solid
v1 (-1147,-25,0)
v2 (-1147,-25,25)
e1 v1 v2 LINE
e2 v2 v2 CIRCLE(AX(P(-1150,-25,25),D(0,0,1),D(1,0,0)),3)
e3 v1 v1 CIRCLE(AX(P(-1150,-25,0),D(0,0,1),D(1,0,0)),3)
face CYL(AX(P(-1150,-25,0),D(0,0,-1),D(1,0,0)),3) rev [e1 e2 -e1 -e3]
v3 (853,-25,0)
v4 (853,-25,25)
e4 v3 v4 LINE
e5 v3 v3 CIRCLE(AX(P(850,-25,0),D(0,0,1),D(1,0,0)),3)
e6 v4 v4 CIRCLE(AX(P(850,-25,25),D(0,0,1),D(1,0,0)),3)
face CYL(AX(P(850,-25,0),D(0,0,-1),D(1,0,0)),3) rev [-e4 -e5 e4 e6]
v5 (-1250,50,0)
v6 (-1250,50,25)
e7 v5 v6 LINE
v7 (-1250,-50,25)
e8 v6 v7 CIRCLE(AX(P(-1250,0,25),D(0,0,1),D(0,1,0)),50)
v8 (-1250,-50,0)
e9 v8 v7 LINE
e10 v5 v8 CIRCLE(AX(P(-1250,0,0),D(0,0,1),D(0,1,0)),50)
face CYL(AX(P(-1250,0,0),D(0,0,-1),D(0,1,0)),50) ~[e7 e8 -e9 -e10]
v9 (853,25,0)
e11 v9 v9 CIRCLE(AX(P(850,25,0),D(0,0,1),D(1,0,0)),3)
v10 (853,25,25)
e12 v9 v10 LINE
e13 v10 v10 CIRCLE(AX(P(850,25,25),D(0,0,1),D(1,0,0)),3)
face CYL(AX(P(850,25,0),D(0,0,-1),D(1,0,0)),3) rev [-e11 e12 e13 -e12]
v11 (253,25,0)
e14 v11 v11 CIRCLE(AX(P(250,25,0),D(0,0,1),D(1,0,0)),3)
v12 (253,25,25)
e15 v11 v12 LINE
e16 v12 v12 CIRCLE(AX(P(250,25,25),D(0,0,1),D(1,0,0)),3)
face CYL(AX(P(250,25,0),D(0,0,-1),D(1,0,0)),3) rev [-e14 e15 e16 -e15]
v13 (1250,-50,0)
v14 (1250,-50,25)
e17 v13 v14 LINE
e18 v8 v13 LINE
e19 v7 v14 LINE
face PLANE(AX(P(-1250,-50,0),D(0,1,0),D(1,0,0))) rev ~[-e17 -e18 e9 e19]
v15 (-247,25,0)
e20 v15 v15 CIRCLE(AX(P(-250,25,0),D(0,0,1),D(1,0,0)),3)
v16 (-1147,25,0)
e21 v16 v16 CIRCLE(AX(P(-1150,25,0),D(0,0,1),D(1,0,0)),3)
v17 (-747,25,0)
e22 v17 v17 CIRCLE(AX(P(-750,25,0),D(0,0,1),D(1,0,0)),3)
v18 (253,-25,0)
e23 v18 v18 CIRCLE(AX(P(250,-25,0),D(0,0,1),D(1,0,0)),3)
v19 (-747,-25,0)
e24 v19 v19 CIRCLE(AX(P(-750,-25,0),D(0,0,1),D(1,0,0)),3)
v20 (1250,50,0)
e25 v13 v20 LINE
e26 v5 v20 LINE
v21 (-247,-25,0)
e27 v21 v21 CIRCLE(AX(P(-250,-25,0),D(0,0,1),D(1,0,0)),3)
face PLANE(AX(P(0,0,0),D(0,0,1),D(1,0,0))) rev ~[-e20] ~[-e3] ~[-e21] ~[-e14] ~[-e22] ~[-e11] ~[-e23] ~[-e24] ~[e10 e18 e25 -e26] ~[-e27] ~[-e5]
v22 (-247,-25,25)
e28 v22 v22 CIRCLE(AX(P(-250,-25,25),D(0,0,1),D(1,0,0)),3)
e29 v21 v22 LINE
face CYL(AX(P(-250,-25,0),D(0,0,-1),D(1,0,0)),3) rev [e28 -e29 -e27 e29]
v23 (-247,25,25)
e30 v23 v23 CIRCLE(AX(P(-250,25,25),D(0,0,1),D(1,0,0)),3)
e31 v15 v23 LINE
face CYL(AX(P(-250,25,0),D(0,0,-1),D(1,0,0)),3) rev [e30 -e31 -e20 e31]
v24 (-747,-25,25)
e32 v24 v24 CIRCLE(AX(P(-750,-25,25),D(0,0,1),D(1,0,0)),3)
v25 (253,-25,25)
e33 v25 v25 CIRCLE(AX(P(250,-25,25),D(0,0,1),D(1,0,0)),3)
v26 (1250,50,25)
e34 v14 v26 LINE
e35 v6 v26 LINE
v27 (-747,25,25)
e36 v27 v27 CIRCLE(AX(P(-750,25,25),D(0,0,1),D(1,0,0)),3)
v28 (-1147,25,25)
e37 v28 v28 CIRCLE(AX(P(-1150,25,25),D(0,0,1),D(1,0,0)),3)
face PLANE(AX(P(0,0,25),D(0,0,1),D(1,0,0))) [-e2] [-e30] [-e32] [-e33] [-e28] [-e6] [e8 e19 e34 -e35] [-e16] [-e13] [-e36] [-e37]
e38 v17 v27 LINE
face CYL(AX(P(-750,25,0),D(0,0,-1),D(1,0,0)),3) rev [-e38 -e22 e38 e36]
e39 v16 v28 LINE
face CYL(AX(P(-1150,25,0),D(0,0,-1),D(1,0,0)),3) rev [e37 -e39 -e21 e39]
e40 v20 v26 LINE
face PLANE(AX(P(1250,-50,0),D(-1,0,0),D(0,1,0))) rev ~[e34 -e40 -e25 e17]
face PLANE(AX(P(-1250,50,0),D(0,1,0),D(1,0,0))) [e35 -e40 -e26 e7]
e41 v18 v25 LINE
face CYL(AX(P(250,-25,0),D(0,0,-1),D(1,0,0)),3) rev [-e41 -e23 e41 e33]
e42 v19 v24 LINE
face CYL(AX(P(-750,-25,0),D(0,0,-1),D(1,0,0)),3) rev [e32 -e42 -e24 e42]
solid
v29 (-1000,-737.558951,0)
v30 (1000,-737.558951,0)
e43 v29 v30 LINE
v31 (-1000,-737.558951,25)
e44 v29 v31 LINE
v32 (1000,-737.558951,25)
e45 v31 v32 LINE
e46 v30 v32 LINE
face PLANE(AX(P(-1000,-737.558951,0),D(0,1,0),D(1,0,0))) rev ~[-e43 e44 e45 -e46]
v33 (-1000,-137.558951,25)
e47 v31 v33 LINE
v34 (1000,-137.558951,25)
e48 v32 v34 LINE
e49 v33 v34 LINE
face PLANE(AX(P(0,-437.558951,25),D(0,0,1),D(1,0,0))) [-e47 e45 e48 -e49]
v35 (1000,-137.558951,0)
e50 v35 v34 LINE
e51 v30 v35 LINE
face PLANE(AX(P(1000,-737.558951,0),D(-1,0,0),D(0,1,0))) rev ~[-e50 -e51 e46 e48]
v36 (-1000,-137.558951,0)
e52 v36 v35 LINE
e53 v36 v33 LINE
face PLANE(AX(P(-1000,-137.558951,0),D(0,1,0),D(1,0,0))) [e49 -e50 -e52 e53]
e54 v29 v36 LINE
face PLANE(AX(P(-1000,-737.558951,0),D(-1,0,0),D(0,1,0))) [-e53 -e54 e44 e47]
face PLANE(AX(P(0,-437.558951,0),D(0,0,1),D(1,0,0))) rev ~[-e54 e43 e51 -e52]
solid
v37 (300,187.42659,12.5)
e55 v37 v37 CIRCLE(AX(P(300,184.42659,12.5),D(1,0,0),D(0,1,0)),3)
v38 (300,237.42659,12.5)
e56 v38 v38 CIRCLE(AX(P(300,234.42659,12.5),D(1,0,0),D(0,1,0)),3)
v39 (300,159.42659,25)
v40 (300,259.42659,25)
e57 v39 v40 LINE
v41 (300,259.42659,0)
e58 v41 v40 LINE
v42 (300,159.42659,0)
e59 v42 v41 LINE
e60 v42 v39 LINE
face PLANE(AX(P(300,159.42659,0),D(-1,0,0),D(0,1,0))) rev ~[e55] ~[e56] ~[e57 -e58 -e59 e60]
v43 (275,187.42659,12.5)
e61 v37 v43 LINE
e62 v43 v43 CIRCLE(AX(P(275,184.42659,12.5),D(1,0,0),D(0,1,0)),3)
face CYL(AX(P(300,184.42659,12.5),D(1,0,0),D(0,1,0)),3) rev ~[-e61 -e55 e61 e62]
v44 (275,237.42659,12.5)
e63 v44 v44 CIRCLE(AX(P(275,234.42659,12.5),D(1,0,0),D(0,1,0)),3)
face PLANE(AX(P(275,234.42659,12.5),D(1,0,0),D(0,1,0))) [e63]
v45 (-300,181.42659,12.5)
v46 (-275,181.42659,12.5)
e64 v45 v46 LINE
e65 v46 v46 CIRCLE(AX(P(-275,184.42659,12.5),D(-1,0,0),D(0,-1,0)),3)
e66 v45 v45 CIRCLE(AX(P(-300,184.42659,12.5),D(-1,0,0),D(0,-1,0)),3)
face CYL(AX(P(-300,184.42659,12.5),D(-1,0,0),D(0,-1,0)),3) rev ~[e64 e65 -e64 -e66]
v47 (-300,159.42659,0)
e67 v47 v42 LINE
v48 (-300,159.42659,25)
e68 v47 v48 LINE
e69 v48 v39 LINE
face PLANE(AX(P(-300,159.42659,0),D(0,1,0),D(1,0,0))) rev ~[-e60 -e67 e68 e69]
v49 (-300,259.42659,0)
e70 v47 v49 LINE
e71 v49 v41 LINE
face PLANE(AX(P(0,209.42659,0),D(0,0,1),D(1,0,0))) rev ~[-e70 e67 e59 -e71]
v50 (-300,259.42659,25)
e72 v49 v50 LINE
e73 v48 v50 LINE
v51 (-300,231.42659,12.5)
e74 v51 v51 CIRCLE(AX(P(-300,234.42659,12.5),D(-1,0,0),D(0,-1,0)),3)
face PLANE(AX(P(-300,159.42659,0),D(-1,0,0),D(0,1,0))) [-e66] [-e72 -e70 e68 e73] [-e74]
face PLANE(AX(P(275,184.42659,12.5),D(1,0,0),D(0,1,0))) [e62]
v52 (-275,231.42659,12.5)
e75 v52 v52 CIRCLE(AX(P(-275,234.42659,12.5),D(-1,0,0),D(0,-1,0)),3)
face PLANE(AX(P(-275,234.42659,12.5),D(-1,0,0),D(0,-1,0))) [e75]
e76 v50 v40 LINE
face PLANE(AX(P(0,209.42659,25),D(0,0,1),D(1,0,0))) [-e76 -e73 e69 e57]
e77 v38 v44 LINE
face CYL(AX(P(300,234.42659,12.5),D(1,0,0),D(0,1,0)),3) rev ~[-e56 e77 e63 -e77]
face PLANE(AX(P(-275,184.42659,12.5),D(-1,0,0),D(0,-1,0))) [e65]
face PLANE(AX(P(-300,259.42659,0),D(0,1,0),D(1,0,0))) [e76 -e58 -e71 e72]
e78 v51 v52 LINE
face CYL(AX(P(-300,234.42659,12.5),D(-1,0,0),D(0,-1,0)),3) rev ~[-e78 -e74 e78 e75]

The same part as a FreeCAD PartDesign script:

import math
import FreeCAD as App
import Part
import Sketcher

V = App.Vector

doc = App.newDocument("Part")
params = doc.addObject("Spreadsheet::Sheet", "Params")
for row, (alias, value) in enumerate([
    ("sketch1_diameter", "6 mm"),
    ("sketch1_radius", "50 mm"),
    ("sketch1_width", "2500 mm"),
    ("pad1_length", "25 mm"),
    ("sketch2_width", "600 mm"),
    ("sketch2_height", "100 mm"),
    ("pad2_length", "25 mm"),
    ("sketch3_diameter", "6 mm"),
    ("pocket1_length", "25 mm"),
    ("sketch4_diameter", "6 mm"),
    ("pocket2_length", "25 mm"),
    ("sketch5_width", "2000 mm"),
    ("sketch5_height", "600 mm"),
    ("pad3_length", "25 mm"),
], start=1):
    params.set(f"A{row}", alias)
    params.set(f"B{row}", "=" + value)
    params.setAlias(f"B{row}", alias)

body = doc.addObject("PartDesign::Body", "Body")

sketch1 = body.newObject("Sketcher::SketchObject", "Sketch")
sketch1.AttachmentSupport = (doc.getObject("XY_Plane"), [""])
sketch1.MapMode = "FlatFace"
sketch1.addGeometry([
    Part.LineSegment(V(-1250, -50, 0), V(1250, -50, 0)),
    Part.LineSegment(V(1250, -50, 0), V(1250, 50, 0)),
    Part.LineSegment(V(1250, 50, 0), V(-1250, 50, 0)),
    Part.ArcOfCircle(Part.Circle(V(-1250, 0, 0), V(0, 0, 1), 50), math.radians(90), math.radians(270)),
    Part.Circle(V(-1150, -25, 0), V(0, 0, 1), 3),
    Part.Circle(V(-750, -25, 0), V(0, 0, 1), 3),
    Part.Circle(V(-250, -25, 0), V(0, 0, 1), 3),
    Part.Circle(V(250, -25, 0), V(0, 0, 1), 3),
    Part.Circle(V(850, -25, 0), V(0, 0, 1), 3),
    Part.Circle(V(-1150, 25, 0), V(0, 0, 1), 3),
    Part.Circle(V(-750, 25, 0), V(0, 0, 1), 3),
    Part.Circle(V(-250, 25, 0), V(0, 0, 1), 3),
    Part.Circle(V(250, 25, 0), V(0, 0, 1), 3),
    Part.Circle(V(850, 25, 0), V(0, 0, 1), 3),
], False)
sketch1.addConstraint([
    Sketcher.Constraint("Coincident", 0, 2, 1, 1),
    Sketcher.Constraint("Coincident", 1, 2, 2, 1),
    Sketcher.Constraint("Tangent", 2, 2, 3, 1),
    Sketcher.Constraint("Tangent", 3, 2, 0, 1),
    Sketcher.Constraint("Horizontal", 0),
    Sketcher.Constraint("Vertical", 1),
    Sketcher.Constraint("Horizontal", 2),
    Sketcher.Constraint("Equal", 4, 5),
    Sketcher.Constraint("Equal", 5, 6),
    Sketcher.Constraint("Equal", 6, 7),
    Sketcher.Constraint("Equal", 7, 8),
    Sketcher.Constraint("Equal", 8, 9),
    Sketcher.Constraint("Equal", 9, 10),
    Sketcher.Constraint("Equal", 10, 11),
    Sketcher.Constraint("Equal", 11, 12),
    Sketcher.Constraint("Equal", 12, 13),
    Sketcher.Constraint("Symmetric", 7, 3, 11, 3, -1, 1),
    Sketcher.Constraint("Symmetric", 6, 3, 12, 3, -1, 1),
    Sketcher.Constraint("Symmetric", 0, 2, 2, 2, -1, 1),
    Sketcher.Constraint("Symmetric", 6, 3, 7, 3, -2),
    Sketcher.Constraint("Symmetric", 4, 3, 9, 3, -1),
    Sketcher.Constraint("Symmetric", 5, 3, 10, 3, -1),
    Sketcher.Constraint("Symmetric", 8, 3, 13, 3, -1),
    Sketcher.Constraint("Horizontal", 4, 3, 5, 3),
    Sketcher.Constraint("Horizontal", 5, 3, 6, 3),
    Sketcher.Constraint("Horizontal", 7, 3, 8, 3),
    Sketcher.Constraint("Diameter", 4, 6.0),
    Sketcher.Constraint("Radius", 3, 50.0),
    Sketcher.Constraint("DistanceX", 0, 1, 0, 2, 2500.0),
    Sketcher.Constraint("DistanceX", 4, 3, -1, 1, 1150.0),
    Sketcher.Constraint("DistanceY", 4, 3, -1, 1, 25.0),
    Sketcher.Constraint("DistanceX", 5, 3, -1, 1, 750.0),
    Sketcher.Constraint("DistanceX", 6, 3, -1, 1, 250.0),
    Sketcher.Constraint("DistanceX", -1, 1, 8, 3, 850.0),
])
sketch1.setExpression("Constraints[26]", "Params.sketch1_diameter")
sketch1.setExpression("Constraints[27]", "Params.sketch1_radius")
sketch1.setExpression("Constraints[28]", "Params.sketch1_width")
pad1 = body.newObject("PartDesign::Pad", "Pad")
pad1.Profile = sketch1
pad1.setExpression("Length", "Params.pad1_length")
body2 = doc.addObject("PartDesign::Body", "Body001")

sketch2 = body2.newObject("Sketcher::SketchObject", "Sketch001")
sketch2.AttachmentSupport = (doc.getObject("XY_Plane001"), [""])
sketch2.MapMode = "FlatFace"
sketch2.addGeometry([
    Part.LineSegment(V(-300, 259, 0), V(-300, 159, 0)),
    Part.LineSegment(V(-300, 159, 0), V(300, 159, 0)),
    Part.LineSegment(V(300, 159, 0), V(300, 259, 0)),
    Part.LineSegment(V(300, 259, 0), V(-300, 259, 0)),
], False)
sketch2.addConstraint([
    Sketcher.Constraint("Coincident", 0, 2, 1, 1),
    Sketcher.Constraint("Coincident", 1, 2, 2, 1),
    Sketcher.Constraint("Coincident", 2, 2, 3, 1),
    Sketcher.Constraint("Coincident", 3, 2, 0, 1),
    Sketcher.Constraint("Vertical", 0),
    Sketcher.Constraint("Horizontal", 1),
    Sketcher.Constraint("Vertical", 2),
    Sketcher.Constraint("Horizontal", 3),
    Sketcher.Constraint("DistanceX", 1, 1, 1, 2, 600.0),
    Sketcher.Constraint("DistanceY", 0, 2, 0, 1, 100.0),
    Sketcher.Constraint("DistanceX", 0, 2, -1, 1, 300.0),
    Sketcher.Constraint("DistanceY", -1, 1, 0, 2, 159.42659),
])
sketch2.setExpression("Constraints[8]", "Params.sketch2_width")
sketch2.setExpression("Constraints[9]", "Params.sketch2_height")
pad2 = body2.newObject("PartDesign::Pad", "Pad001")
pad2.Profile = sketch2
pad2.setExpression("Length", "Params.pad2_length")

sketch3 = body2.newObject("Sketcher::SketchObject", "Sketch002")
sketch3.AttachmentSupport = (doc.getObject("YZ_Plane001"), [""])
sketch3.MapMode = "FlatFace"
sketch3.AttachmentOffset = App.Placement(V(0, 0, -300), App.Rotation())
sketch3.addGeometry([
    Part.Circle(V(234.4, 12.5, 0), V(0, 0, 1), 3),
    Part.Circle(V(184.4, 12.5, 0), V(0, 0, 1), 3),
], False)
sketch3.addConstraint([
    Sketcher.Constraint("Equal", 0, 1),
    Sketcher.Constraint("Horizontal", 0, 3, 1, 3),
    Sketcher.Constraint("Diameter", 0, 6.0),
    Sketcher.Constraint("DistanceX", 1, 3, 0, 3, 50.0),
    Sketcher.Constraint("DistanceY", -1, 1, 0, 3, 12.5),
    Sketcher.Constraint("DistanceX", -1, 1, 0, 3, 234.42659),
])
sketch3.setExpression("Constraints[2]", "Params.sketch3_diameter")
pocket1 = body2.newObject("PartDesign::Pocket", "Pocket")
pocket1.Profile = sketch3
pocket1.setExpression("Length", "Params.pocket1_length")
pocket1.Reversed = True

sketch4 = body2.newObject("Sketcher::SketchObject", "Sketch003")
sketch4.AttachmentSupport = (doc.getObject("YZ_Plane001"), [""])
sketch4.MapMode = "FlatFace"
sketch4.AttachmentOffset = App.Placement(V(0, 0, 300), App.Rotation())
sketch4.addGeometry([
    Part.Circle(V(184.4, 12.5, 0), V(0, 0, 1), 3),
    Part.Circle(V(234.4, 12.5, 0), V(0, 0, 1), 3),
], False)
sketch4.addConstraint([
    Sketcher.Constraint("Equal", 0, 1),
    Sketcher.Constraint("Horizontal", 0, 3, 1, 3),
    Sketcher.Constraint("Diameter", 0, 6.0),
    Sketcher.Constraint("DistanceX", 0, 3, 1, 3, 50.0),
    Sketcher.Constraint("DistanceY", -1, 1, 0, 3, 12.5),
    Sketcher.Constraint("DistanceX", -1, 1, 0, 3, 184.42659),
])
sketch4.setExpression("Constraints[2]", "Params.sketch4_diameter")
pocket2 = body2.newObject("PartDesign::Pocket", "Pocket001")
pocket2.Profile = sketch4
pocket2.setExpression("Length", "Params.pocket2_length")
body3 = doc.addObject("PartDesign::Body", "Body002")

sketch5 = body3.newObject("Sketcher::SketchObject", "Sketch004")
sketch5.AttachmentSupport = (doc.getObject("XY_Plane002"), [""])
sketch5.MapMode = "FlatFace"
sketch5.addGeometry([
    Part.LineSegment(V(-1000, -138, 0), V(-1000, -738, 0)),
    Part.LineSegment(V(-1000, -738, 0), V(1000, -738, 0)),
    Part.LineSegment(V(1000, -738, 0), V(1000, -138, 0)),
    Part.LineSegment(V(1000, -138, 0), V(-1000, -138, 0)),
], False)
sketch5.addConstraint([
    Sketcher.Constraint("Coincident", 0, 2, 1, 1),
    Sketcher.Constraint("Coincident", 1, 2, 2, 1),
    Sketcher.Constraint("Coincident", 2, 2, 3, 1),
    Sketcher.Constraint("Coincident", 3, 2, 0, 1),
    Sketcher.Constraint("Vertical", 0),
    Sketcher.Constraint("Horizontal", 1),
    Sketcher.Constraint("Vertical", 2),
    Sketcher.Constraint("Horizontal", 3),
    Sketcher.Constraint("DistanceX", 1, 1, 1, 2, 2000.0),
    Sketcher.Constraint("DistanceY", 0, 2, 0, 1, 600.0),
    Sketcher.Constraint("DistanceX", 0, 2, -1, 1, 1000.0),
    Sketcher.Constraint("DistanceY", 0, 2, -1, 1, 737.558951),
])
sketch5.setExpression("Constraints[8]", "Params.sketch5_width")
sketch5.setExpression("Constraints[9]", "Params.sketch5_height")
pad3 = body3.newObject("PartDesign::Pad", "Pad002")
pad3.Profile = sketch5
pad3.setExpression("Length", "Params.pad3_length")

doc.recompute()
